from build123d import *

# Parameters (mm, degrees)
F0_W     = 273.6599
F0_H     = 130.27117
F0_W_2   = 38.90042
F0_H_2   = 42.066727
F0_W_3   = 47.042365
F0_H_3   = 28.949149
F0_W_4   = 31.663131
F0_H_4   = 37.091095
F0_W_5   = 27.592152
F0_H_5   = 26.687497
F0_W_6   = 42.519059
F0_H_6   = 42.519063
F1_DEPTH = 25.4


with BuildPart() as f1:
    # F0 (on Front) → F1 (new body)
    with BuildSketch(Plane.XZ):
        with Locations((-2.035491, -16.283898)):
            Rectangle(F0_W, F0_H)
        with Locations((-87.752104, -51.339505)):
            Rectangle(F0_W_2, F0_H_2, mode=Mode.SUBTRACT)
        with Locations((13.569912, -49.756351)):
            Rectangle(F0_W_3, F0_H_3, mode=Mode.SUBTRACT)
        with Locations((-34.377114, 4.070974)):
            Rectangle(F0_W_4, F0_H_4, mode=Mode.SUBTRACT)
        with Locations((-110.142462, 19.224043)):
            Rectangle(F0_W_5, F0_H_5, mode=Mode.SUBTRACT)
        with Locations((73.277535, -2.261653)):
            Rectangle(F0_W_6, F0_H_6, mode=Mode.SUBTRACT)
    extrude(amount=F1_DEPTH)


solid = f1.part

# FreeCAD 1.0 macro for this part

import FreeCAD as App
import Part
import Sketcher
from FreeCAD import Vector
Q = App.Units.Quantity

doc = App.newDocument("Part")
body = doc.addObject("PartDesign::Body", "Body")

# Sketch on XZ plane
sketch1 = doc.addObject("Sketcher::SketchObject", "Sketch")
body.addObject(sketch1)
sketch1.AttachmentSupport = (doc.XZ_Plane, [""])
sketch1.MapMode = "FlatFace"
sketch1.addGeometry(Part.LineSegment(Vector(-139, 49, 0), Vector(-139, -81, 0)), False)
sketch1.addGeometry(Part.LineSegment(Vector(-139, -81, 0), Vector(135, -81, 0)), False)
sketch1.addGeometry(Part.LineSegment(Vector(135, -81, 0), Vector(135, 49, 0)), False)
sketch1.addGeometry(Part.LineSegment(Vector(135, 49, 0), Vector(-139, 49, 0)), False)
sketch1.addGeometry(Part.LineSegment(Vector(-68, -72, 0), Vector(-107, -72, 0)), False)
sketch1.addGeometry(Part.LineSegment(Vector(-107, -72, 0), Vector(-107, -30, 0)), False)
sketch1.addGeometry(Part.LineSegment(Vector(-107, -30, 0), Vector(-68, -30, 0)), False)
sketch1.addGeometry(Part.LineSegment(Vector(-68, -30, 0), Vector(-68, -72, 0)), False)
sketch1.addGeometry(Part.LineSegment(Vector(37, -64, 0), Vector(-10, -64, 0)), False)
sketch1.addGeometry(Part.LineSegment(Vector(-10, -64, 0), Vector(-10, -35, 0)), False)
sketch1.addGeometry(Part.LineSegment(Vector(-10, -35, 0), Vector(37, -35, 0)), False)
sketch1.addGeometry(Part.LineSegment(Vector(37, -35, 0), Vector(37, -64, 0)), False)
sketch1.addGeometry(Part.LineSegment(Vector(-19, -14, 0), Vector(-50, -14, 0)), False)
sketch1.addGeometry(Part.LineSegment(Vector(-50, -14, 0), Vector(-50, 23, 0)), False)
sketch1.addGeometry(Part.LineSegment(Vector(-50, 23, 0), Vector(-19, 23, 0)), False)
sketch1.addGeometry(Part.LineSegment(Vector(-19, 23, 0), Vector(-19, -14, 0)), False)
sketch1.addGeometry(Part.LineSegment(Vector(-96, 6, 0), Vector(-124, 6, 0)), False)
sketch1.addGeometry(Part.LineSegment(Vector(-124, 6, 0), Vector(-124, 33, 0)), False)
sketch1.addGeometry(Part.LineSegment(Vector(-124, 33, 0), Vector(-96, 33, 0)), False)
sketch1.addGeometry(Part.LineSegment(Vector(-96, 33, 0), Vector(-96, 6, 0)), False)
sketch1.addGeometry(Part.LineSegment(Vector(95, -24, 0), Vector(52, -24, 0)), False)
sketch1.addGeometry(Part.LineSegment(Vector(52, -24, 0), Vector(52, 19, 0)), False)
sketch1.addGeometry(Part.LineSegment(Vector(52, 19, 0), Vector(95, 19, 0)), False)
sketch1.addGeometry(Part.LineSegment(Vector(95, 19, 0), Vector(95, -24, 0)), False)
sketch1.addConstraint(Sketcher.Constraint("Coincident", 0, 2, 1, 1))
sketch1.addConstraint(Sketcher.Constraint("Coincident", 1, 2, 2, 1))
sketch1.addConstraint(Sketcher.Constraint("Coincident", 2, 2, 3, 1))
sketch1.addConstraint(Sketcher.Constraint("Coincident", 3, 2, 0, 1))
sketch1.addConstraint(Sketcher.Constraint("Coincident", 4, 2, 5, 1))
sketch1.addConstraint(Sketcher.Constraint("Coincident", 5, 2, 6, 1))
sketch1.addConstraint(Sketcher.Constraint("Coincident", 6, 2, 7, 1))
sketch1.addConstraint(Sketcher.Constraint("Coincident", 7, 2, 4, 1))
sketch1.addConstraint(Sketcher.Constraint("Coincident", 8, 2, 9, 1))
sketch1.addConstraint(Sketcher.Constraint("Coincident", 9, 2, 10, 1))
sketch1.addConstraint(Sketcher.Constraint("Coincident", 10, 2, 11, 1))
sketch1.addConstraint(Sketcher.Constraint("Coincident", 11, 2, 8, 1))
sketch1.addConstraint(Sketcher.Constraint("Coincident", 12, 2, 13, 1))
sketch1.addConstraint(Sketcher.Constraint("Coincident", 13, 2, 14, 1))
sketch1.addConstraint(Sketcher.Constraint("Coincident", 14, 2, 15, 1))
sketch1.addConstraint(Sketcher.Constraint("Coincident", 15, 2, 12, 1))
sketch1.addConstraint(Sketcher.Constraint("Coincident", 16, 2, 17, 1))
sketch1.addConstraint(Sketcher.Constraint("Coincident", 17, 2, 18, 1))
sketch1.addConstraint(Sketcher.Constraint("Coincident", 18, 2, 19, 1))
sketch1.addConstraint(Sketcher.Constraint("Coincident", 19, 2, 16, 1))
sketch1.addConstraint(Sketcher.Constraint("Coincident", 20, 2, 21, 1))
sketch1.addConstraint(Sketcher.Constraint("Coincident", 21, 2, 22, 1))
sketch1.addConstraint(Sketcher.Constraint("Coincident", 22, 2, 23, 1))
sketch1.addConstraint(Sketcher.Constraint("Coincident", 23, 2, 20, 1))
sketch1.addConstraint(Sketcher.Constraint("Vertical", 0))
sketch1.addConstraint(Sketcher.Constraint("Horizontal", 1))
sketch1.addConstraint(Sketcher.Constraint("Vertical", 2))
sketch1.addConstraint(Sketcher.Constraint("Horizontal", 3))
sketch1.addConstraint(Sketcher.Constraint("Horizontal", 4))
sketch1.addConstraint(Sketcher.Constraint("Vertical", 5))
sketch1.addConstraint(Sketcher.Constraint("Horizontal", 6))
sketch1.addConstraint(Sketcher.Constraint("Vertical", 7))
sketch1.addConstraint(Sketcher.Constraint("Horizontal", 8))
sketch1.addConstraint(Sketcher.Constraint("Vertical", 9))
sketch1.addConstraint(Sketcher.Constraint("Horizontal", 10))
sketch1.addConstraint(Sketcher.Constraint("Vertical", 11))
sketch1.addConstraint(Sketcher.Constraint("Horizontal", 12))
sketch1.addConstraint(Sketcher.Constraint("Vertical", 13))
sketch1.addConstraint(Sketcher.Constraint("Horizontal", 14))
sketch1.addConstraint(Sketcher.Constraint("Vertical", 15))
sketch1.addConstraint(Sketcher.Constraint("Horizontal", 16))
sketch1.addConstraint(Sketcher.Constraint("Vertical", 17))
sketch1.addConstraint(Sketcher.Constraint("Horizontal", 18))
sketch1.addConstraint(Sketcher.Constraint("Vertical", 19))
sketch1.addConstraint(Sketcher.Constraint("Horizontal", 20))
sketch1.addConstraint(Sketcher.Constraint("Vertical", 21))
sketch1.addConstraint(Sketcher.Constraint("Horizontal", 22))
sketch1.addConstraint(Sketcher.Constraint("Vertical", 23))
sketch1.addConstraint(Sketcher.Constraint("DistanceX", 1, 1, 1, 2, 273.6599))
sketch1.addConstraint(Sketcher.Constraint("DistanceX", 4, 2, 4, 1, 38.90042))
sketch1.addConstraint(Sketcher.Constraint("DistanceX", 12, 2, 12, 1, 31.663131))
sketch1.addConstraint(Sketcher.Constraint("DistanceX", 16, 2, 16, 1, 27.592152))
sketch1.addConstraint(Sketcher.Constraint("DistanceX", 20, 2, 20, 1, 42.519059))
sketch1.addConstraint(Sketcher.Constraint("DistanceY", 0, 2, 0, 1, 130.27117))
sketch1.addConstraint(Sketcher.Constraint("DistanceY", 9, 1, 9, 2, 28.949149))
sketch1.addConstraint(Sketcher.Constraint("DistanceX", 8, 2, 8, 1, 47.042365))
sketch1.addConstraint(Sketcher.Constraint("DistanceY", 5, 1, 5, 2, 42.066727))
sketch1.addConstraint(Sketcher.Constraint("DistanceY", 13, 1, 13, 2, 37.091095))
sketch1.addConstraint(Sketcher.Constraint("DistanceY", 17, 1, 17, 2, 26.687497))
sketch1.addConstraint(Sketcher.Constraint("DistanceY", 21, 1, 21, 2, 42.519063))
sketch1.addConstraint(Sketcher.Constraint("DistanceX", 0, 2, -1, 1, 138.865441))
sketch1.addConstraint(Sketcher.Constraint("DistanceY", 4, 2, -1, 1, 72.372868))
sketch1.addConstraint(Sketcher.Constraint("DistanceX", 8, 2, -1, 1, 9.95127))
sketch1.addConstraint(Sketcher.Constraint("DistanceX", 12, 2, -1, 1, 50.20868))
sketch1.addConstraint(Sketcher.Constraint("DistanceY", -1, 1, 13, 2, 22.616522))
sketch1.addConstraint(Sketcher.Constraint("DistanceY", -1, 1, 17, 2, 32.567791))
sketch1.addConstraint(Sketcher.Constraint("DistanceY", -1, 1, 21, 2, 18.997878))
sketch1.addConstraint(Sketcher.Constraint("DistanceY", 0, 2, 5, 2, 51.113342))
sketch1.addConstraint(Sketcher.Constraint("DistanceY", 7, 2, 9, 2, 37.091092))
sketch1.addConstraint(Sketcher.Constraint("DistanceX", 6, 2, 10, 2, 105.392989))
sketch1.addConstraint(Sketcher.Constraint("DistanceX", 16, 2, 13, 2, 73.729858))
sketch1.addConstraint(Sketcher.Constraint("DistanceX", 10, 2, 20, 2, 14.926911))
pad1 = doc.addObject("PartDesign::Pad", "Pad")
body.addObject(pad1)
pad1.Profile = sketch1
pad1.Length = Q("1 in")

doc.recompute()
